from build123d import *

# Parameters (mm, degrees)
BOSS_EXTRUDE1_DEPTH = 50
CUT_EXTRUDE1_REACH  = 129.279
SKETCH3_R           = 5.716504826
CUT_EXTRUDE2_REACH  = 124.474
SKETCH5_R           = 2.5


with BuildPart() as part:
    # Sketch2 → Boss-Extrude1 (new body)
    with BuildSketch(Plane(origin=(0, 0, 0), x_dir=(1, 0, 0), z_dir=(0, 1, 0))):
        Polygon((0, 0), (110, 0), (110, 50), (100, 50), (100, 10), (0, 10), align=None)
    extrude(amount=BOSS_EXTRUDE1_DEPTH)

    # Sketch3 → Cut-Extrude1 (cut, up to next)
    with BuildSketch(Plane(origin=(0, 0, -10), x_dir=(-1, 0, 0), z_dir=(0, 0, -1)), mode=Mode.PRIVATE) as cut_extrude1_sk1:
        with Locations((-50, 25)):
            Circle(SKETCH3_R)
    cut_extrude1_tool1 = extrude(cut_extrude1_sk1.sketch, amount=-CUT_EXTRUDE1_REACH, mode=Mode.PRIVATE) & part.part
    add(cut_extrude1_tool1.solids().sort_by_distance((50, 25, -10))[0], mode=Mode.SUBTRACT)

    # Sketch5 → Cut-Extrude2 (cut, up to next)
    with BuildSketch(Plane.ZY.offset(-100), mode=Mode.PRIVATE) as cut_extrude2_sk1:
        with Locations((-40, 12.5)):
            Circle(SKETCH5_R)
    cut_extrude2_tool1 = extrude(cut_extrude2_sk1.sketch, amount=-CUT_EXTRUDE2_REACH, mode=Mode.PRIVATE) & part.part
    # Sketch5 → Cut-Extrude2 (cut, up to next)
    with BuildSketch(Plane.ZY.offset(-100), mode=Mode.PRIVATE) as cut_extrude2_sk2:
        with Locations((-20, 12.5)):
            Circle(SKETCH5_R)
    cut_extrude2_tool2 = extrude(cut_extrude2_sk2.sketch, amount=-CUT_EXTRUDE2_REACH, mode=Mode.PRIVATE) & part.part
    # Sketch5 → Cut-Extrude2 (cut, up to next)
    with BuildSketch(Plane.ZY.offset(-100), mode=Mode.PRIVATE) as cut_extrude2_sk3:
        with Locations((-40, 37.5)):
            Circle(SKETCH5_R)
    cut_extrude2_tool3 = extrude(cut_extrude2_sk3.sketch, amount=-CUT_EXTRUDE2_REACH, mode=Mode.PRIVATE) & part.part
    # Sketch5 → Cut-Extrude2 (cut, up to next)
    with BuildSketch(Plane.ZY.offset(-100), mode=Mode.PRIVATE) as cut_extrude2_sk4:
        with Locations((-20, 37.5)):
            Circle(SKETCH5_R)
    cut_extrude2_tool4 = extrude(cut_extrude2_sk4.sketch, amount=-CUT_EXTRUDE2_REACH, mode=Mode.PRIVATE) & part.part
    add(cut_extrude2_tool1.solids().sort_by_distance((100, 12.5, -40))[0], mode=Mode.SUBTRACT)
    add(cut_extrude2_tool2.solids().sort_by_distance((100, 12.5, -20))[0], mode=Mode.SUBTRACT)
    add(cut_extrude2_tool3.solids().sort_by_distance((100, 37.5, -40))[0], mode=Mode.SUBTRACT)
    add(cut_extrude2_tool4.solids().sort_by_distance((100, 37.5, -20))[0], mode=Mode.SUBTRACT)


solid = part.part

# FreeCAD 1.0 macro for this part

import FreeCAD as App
import Part
import Sketcher

V = App.Vector

doc = App.newDocument("Part")
body = doc.addObject("PartDesign::Body", "Body")

# Sketch on XZ plane
sketch1 = body.newObject("Sketcher::SketchObject", "Sketch")
sketch1.AttachmentSupport = (doc.getObject("XZ_Plane"), [""])
sketch1.MapMode = "FlatFace"
sketch1.addGeometry([
    Part.LineSegment(V(0, 0, 0), V(110, 0, 0)),  # 0
    Part.LineSegment(V(110, 0, 0), V(110, -50, 0)),  # 1
    Part.LineSegment(V(110, -50, 0), V(100, -50, 0)),  # 2
    Part.LineSegment(V(100, -50, 0), V(100, -10, 0)),  # 3
    Part.LineSegment(V(100, -10, 0), V(0, -10, 0)),  # 4
    Part.LineSegment(V(0, -10, 0), V(0, 0, 0)),  # 5
], False)
sketch1.addConstraint([
    Sketcher.Constraint("Coincident", 0, 2, 1, 1),
    Sketcher.Constraint("Coincident", 1, 2, 2, 1),
    Sketcher.Constraint("Coincident", 2, 2, 3, 1),
    Sketcher.Constraint("Coincident", 3, 2, 4, 1),
    Sketcher.Constraint("Coincident", 4, 2, 5, 1),
    Sketcher.Constraint("Coincident", 5, 2, 0, 1),
    Sketcher.Constraint("Horizontal", 0),
    Sketcher.Constraint("Vertical", 1),
    Sketcher.Constraint("Horizontal", 2),
    Sketcher.Constraint("Vertical", 3),
    Sketcher.Constraint("Horizontal", 4),
    Sketcher.Constraint("Vertical", 5),
    Sketcher.Constraint("Coincident", 5, 2, -1, 1),
    Sketcher.Constraint("Equal", 2, 5),
    Sketcher.Constraint("DistanceX", 0, 1, 0, 2, 110.0),
    Sketcher.Constraint("DistanceX", 2, 2, 2, 1, 10.0),
    Sketcher.Constraint("DistanceY", 1, 2, 1, 1, 50.0),
])
pad1 = body.newObject("PartDesign::Pad", "Pad")
pad1.Profile = sketch1
pad1.Length = 50
pad1.Reversed = True

# Sketch on XY plane
sketch2 = body.newObject("Sketcher::SketchObject", "Sketch001")
sketch2.AttachmentSupport = (doc.getObject("XY_Plane"), [""])
sketch2.MapMode = "FlatFace"
sketch2.AttachmentOffset = App.Placement(V(0, 0, -10), App.Rotation())
sketch2.addGeometry(Part.Circle(V(50, 25, 0), V(0, 0, 1), 6), False)
sketch2.addConstraint([
    Sketcher.Constraint("DistanceX", -1, 1, 0, 3, 50.0),
    Sketcher.Constraint("DistanceY", -1, 1, 0, 3, 25.0),
    Sketcher.Constraint("Diameter", 0, 11.43301),
])
pocket1 = body.newObject("PartDesign::Pocket", "Pocket")
pocket1.Profile = sketch2
pocket1.Type = "UpToFirst"
pocket1.Reversed = True

# Sketch on YZ plane
sketch3 = body.newObject("Sketcher::SketchObject", "Sketch002")
sketch3.AttachmentSupport = (doc.getObject("YZ_Plane"), [""])
sketch3.MapMode = "FlatFace"
sketch3.AttachmentOffset = App.Placement(V(0, 0, 100), App.Rotation())
sketch3.addGeometry(Part.Circle(V(12.5, -40, 0), V(0, 0, 1), 2.5), False)
sketch3.addConstraint([
    Sketcher.Constraint("Diameter", 0, 5.0),
    Sketcher.Constraint("DistanceY", 0, 3, -1, 1, 40.0),
    Sketcher.Constraint("DistanceX", -1, 1, 0, 3, 12.5),
])
pocket2 = body.newObject("PartDesign::Pocket", "Pocket001")
pocket2.Profile = sketch3
pocket2.Type = "UpToFirst"
pocket2.Reversed = True

# Sketch on YZ plane
sketch4 = body.newObject("Sketcher::SketchObject", "Sketch003")
sketch4.AttachmentSupport = (doc.getObject("YZ_Plane"), [""])
sketch4.MapMode = "FlatFace"
sketch4.AttachmentOffset = App.Placement(V(0, 0, 100), App.Rotation())
sketch4.addGeometry(Part.Circle(V(12.5, -20, 0), V(0, 0, 1), 2.5), False)
sketch4.addConstraint([
    Sketcher.Constraint("Diameter", 0, 5.0),
    Sketcher.Constraint("DistanceY", 0, 3, -1, 1, 20.0),
    Sketcher.Constraint("DistanceX", -1, 1, 0, 3, 12.5),
])
pocket3 = body.newObject("PartDesign::Pocket", "Pocket002")
pocket3.Profile = sketch4
pocket3.Type = "UpToFirst"
pocket3.Reversed = True

# Sketch on YZ plane
sketch5 = body.newObject("Sketcher::SketchObject", "Sketch004")
sketch5.AttachmentSupport = (doc.getObject("YZ_Plane"), [""])
sketch5.MapMode = "FlatFace"
sketch5.AttachmentOffset = App.Placement(V(0, 0, 100), App.Rotation())
sketch5.addGeometry(Part.Circle(V(37.5, -40, 0), V(0, 0, 1), 2.5), False)
sketch5.addConstraint([
    Sketcher.Constraint("Diameter", 0, 5.0),
    Sketcher.Constraint("DistanceY", 0, 3, -1, 1, 40.0),
    Sketcher.Constraint("DistanceX", -1, 1, 0, 3, 37.5),
])
pocket4 = body.newObject("PartDesign::Pocket", "Pocket003")
pocket4.Profile = sketch5
pocket4.Type = "UpToFirst"
pocket4.Reversed = True

# Sketch on YZ plane
sketch6 = body.newObject("Sketcher::SketchObject", "Sketch005")
sketch6.AttachmentSupport = (doc.getObject("YZ_Plane"), [""])
sketch6.MapMode = "FlatFace"
sketch6.AttachmentOffset = App.Placement(V(0, 0, 100), App.Rotation())
sketch6.addGeometry(Part.Circle(V(37.5, -20, 0), V(0, 0, 1), 2.5), False)
sketch6.addConstraint([
    Sketcher.Constraint("Diameter", 0, 5.0),
    Sketcher.Constraint("DistanceY", 0, 3, -1, 1, 20.0),
    Sketcher.Constraint("DistanceX", -1, 1, 0, 3, 37.5),
])
pocket5 = body.newObject("PartDesign::Pocket", "Pocket004")
pocket5.Profile = sketch6
pocket5.Type = "UpToFirst"
pocket5.Reversed = True

doc.recompute()
